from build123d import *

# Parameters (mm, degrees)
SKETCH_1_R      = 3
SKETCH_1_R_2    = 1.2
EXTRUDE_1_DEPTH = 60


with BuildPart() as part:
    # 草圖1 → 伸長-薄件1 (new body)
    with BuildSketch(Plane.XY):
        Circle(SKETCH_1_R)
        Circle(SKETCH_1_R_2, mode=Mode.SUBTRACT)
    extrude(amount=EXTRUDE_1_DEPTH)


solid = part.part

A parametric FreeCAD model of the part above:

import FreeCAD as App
import Part
import Sketcher
from FreeCAD import Vector
Q = App.Units.Quantity

doc = App.newDocument("Part")
params = doc.addObject("Spreadsheet::Sheet", "Params")
for row, (alias, value) in enumerate([
    ("sketch1_diameter", "6 mm"),
    ("sketch1_diameter2", "2.4 mm"),
    ("pad1_length", "60 mm"),
], start=1):
    params.set(f"A{row}", alias)
    params.set(f"B{row}", "=" + value)
    params.setAlias(f"B{row}", alias)

body = doc.addObject("PartDesign::Body", "Body")

sketch1 = body.newObject("Sketcher::SketchObject", "Sketch")
sketch1.AttachmentSupport = (doc.getObject("XY_Plane"), [""])
sketch1.MapMode = "FlatFace"
sketch1.addGeometry(Part.Circle(Vector(0, 0, 0), Vector(0, 0, 1), 3), False)
sketch1.addGeometry(Part.Circle(Vector(0, 0, 0), Vector(0, 0, 1), 1.2), False)
sketch1.addConstraint(Sketcher.Constraint("Coincident", 0, 3, -1, 1))
sketch1.addConstraint(Sketcher.Constraint("Coincident", 1, 3, -1, 1))
sketch1.addConstraint(Sketcher.Constraint("Diameter", 0, Q("6 mm")))
sketch1.addConstraint(Sketcher.Constraint("Diameter", 1, Q("2.4 mm")))
sketch1.setExpression("Constraints[2]", "Params.sketch1_diameter")
sketch1.setExpression("Constraints[3]", "Params.sketch1_diameter2")
pad1 = body.newObject("PartDesign::Pad", "Pad")
pad1.Profile = sketch1
pad1.setExpression("Length", "Params.pad1_length")

doc.recompute()
